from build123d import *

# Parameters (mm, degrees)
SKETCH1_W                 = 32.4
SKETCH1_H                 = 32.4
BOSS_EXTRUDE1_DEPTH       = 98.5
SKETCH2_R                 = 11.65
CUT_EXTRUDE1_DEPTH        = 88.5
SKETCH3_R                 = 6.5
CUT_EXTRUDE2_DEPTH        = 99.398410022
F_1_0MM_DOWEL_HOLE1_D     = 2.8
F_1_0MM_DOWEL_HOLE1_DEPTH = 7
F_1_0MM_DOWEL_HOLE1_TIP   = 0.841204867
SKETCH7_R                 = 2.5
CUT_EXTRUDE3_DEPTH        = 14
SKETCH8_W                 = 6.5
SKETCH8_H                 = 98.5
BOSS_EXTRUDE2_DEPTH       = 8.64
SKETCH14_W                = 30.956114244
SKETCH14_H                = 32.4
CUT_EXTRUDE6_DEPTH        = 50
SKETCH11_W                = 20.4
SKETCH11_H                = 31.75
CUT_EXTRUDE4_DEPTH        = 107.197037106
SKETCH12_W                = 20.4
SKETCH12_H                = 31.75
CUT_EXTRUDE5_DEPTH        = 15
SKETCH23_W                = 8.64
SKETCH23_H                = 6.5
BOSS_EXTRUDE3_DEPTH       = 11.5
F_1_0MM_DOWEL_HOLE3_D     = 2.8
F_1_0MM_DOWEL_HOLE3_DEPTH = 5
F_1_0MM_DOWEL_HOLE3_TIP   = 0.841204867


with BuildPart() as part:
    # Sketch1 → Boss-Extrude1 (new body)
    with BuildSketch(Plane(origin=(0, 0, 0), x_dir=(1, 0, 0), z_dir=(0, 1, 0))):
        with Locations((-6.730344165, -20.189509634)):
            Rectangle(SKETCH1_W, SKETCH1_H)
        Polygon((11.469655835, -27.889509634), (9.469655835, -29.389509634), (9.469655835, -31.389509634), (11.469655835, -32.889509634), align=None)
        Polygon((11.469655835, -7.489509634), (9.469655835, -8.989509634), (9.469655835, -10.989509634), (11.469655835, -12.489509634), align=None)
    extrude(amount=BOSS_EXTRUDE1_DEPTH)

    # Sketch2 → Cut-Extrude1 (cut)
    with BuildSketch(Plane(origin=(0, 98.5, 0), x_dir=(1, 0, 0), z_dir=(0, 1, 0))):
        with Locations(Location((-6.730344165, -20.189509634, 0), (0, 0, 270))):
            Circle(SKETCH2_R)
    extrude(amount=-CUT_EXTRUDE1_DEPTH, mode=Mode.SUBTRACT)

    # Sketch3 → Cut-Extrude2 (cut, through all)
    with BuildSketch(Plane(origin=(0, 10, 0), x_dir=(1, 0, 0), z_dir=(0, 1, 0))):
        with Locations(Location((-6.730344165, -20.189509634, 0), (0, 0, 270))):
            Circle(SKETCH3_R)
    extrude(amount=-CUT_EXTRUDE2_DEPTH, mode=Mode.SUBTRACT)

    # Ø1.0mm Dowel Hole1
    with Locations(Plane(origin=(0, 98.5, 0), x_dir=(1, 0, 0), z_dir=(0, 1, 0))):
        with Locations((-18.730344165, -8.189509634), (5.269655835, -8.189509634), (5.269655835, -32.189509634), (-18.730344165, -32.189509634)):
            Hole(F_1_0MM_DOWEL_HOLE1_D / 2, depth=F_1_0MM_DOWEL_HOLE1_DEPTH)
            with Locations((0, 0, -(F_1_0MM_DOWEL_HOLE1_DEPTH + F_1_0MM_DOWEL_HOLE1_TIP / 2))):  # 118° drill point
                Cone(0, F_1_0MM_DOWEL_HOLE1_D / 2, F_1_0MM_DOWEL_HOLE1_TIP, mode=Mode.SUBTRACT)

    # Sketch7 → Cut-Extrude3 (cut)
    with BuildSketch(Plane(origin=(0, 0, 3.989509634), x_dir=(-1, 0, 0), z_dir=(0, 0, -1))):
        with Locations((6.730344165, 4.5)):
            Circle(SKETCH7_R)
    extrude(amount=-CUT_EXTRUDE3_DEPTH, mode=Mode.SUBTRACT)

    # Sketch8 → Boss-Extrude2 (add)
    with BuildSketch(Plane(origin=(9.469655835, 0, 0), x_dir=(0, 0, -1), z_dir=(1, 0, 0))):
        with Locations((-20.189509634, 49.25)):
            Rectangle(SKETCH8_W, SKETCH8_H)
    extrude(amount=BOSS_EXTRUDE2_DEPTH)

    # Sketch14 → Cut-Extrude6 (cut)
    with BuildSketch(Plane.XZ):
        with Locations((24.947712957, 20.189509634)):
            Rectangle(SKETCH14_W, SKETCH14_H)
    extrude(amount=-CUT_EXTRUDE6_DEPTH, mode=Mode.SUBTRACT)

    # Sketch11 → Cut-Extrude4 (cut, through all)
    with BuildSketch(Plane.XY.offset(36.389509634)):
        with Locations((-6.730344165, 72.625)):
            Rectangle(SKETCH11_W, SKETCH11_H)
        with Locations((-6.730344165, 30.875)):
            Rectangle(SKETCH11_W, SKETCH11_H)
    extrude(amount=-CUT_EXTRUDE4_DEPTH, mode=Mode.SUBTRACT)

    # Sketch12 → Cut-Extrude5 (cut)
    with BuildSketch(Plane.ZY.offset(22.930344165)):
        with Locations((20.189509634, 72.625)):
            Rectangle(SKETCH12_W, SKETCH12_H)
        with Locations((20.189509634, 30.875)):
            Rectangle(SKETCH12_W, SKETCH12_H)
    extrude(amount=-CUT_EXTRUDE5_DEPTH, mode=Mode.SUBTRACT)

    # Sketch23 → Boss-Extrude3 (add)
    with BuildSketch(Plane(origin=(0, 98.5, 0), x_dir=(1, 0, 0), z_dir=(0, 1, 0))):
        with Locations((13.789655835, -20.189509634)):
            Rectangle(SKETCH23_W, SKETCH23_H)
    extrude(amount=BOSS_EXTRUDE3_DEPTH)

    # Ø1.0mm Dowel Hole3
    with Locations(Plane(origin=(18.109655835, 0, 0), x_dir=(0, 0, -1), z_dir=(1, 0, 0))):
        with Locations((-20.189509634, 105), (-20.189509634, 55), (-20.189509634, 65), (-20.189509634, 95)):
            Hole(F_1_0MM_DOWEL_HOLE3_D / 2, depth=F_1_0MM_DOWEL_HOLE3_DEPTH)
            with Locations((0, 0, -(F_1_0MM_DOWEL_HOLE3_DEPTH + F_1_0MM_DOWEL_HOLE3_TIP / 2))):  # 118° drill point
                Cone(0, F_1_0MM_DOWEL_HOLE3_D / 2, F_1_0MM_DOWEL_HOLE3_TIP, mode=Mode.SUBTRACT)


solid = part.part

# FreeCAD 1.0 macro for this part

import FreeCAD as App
import Part
import Sketcher
from FreeCAD import Vector

doc = App.newDocument("Part")
params = doc.addObject("Spreadsheet::Sheet", "Params")
for row, (alias, value) in enumerate([
    ("sketch1_height", "5 mm"),
    ("sketch1_width", "32.4 mm"),
    ("sketch1_height2", "18.4 mm"),
    ("pad1_length", "98.5 mm"),
    ("sketch2_diameter", "23.3 mm"),
    ("pocket1_length", "88.5 mm"),
    ("sketch3_diameter", "13 mm"),
    ("sketch4_diameter", "2.8 mm"),
    ("hole_diameter", "2.8 mm"),
    ("hole_depth", "7 mm"),
    ("sketch5_diameter", "5 mm"),
    ("pocket3_length", "14 mm"),
    ("sketch6_width", "98.5 mm"),
    ("sketch6_height", "6.5 mm"),
    ("pad2_length", "8.64 mm"),
    ("sketch7_height", "32.4 mm"),
    ("pocket4_length", "50 mm"),
    ("sketch8_width", "20.4 mm"),
    ("sketch8_height", "31.75 mm"),
    ("sketch9_height", "20.4 mm"),
    ("sketch9_width", "31.75 mm"),
    ("pocket6_length", "15 mm"),
    ("sketch10_height", "6.5 mm"),
    ("sketch10_width", "8.64 mm"),
    ("pad3_length", "11.5 mm"),
    ("sketch11_diameter", "2.8 mm"),
    ("hole2_diameter", "2.8 mm"),
    ("hole2_depth", "5 mm"),
], start=1):
    params.set(f"A{row}", alias)
    params.set(f"B{row}", "=" + value)
    params.setAlias(f"B{row}", alias)

body = doc.addObject("PartDesign::Body", "Body")

# Sketch on XZ plane
sketch1 = body.newObject("Sketcher::SketchObject", "Sketch")
sketch1.AttachmentSupport = (doc.getObject("XZ_Plane"), [""])
sketch1.MapMode = "FlatFace"
sketch1.addGeometry([
    Part.LineSegment(Vector(-22.930344, 3.98951, 0), Vector(-22.930344, 36.38951, 0)),  # 0
    Part.LineSegment(Vector(-22.930344, 36.38951, 0), Vector(9.469656, 36.38951, 0)),  # 1
    Part.LineSegment(Vector(9.469656, 36.38951, 0), Vector(9.469656, 31.38951, 0)),  # 2
    Part.LineSegment(Vector(9.469656, 31.38951, 0), Vector(11.469656, 32.88951, 0)),  # 3
    Part.LineSegment(Vector(11.469656, 32.88951, 0), Vector(11.469656, 27.88951, 0)),  # 4
    Part.LineSegment(Vector(11.469656, 27.88951, 0), Vector(9.469656, 29.38951, 0)),  # 5
    Part.LineSegment(Vector(9.469656, 29.38951, 0), Vector(9.469656, 10.98951, 0)),  # 6
    Part.LineSegment(Vector(9.469656, 10.98951, 0), Vector(11.469656, 12.48951, 0)),  # 7
    Part.LineSegment(Vector(11.469656, 12.48951, 0), Vector(11.469656, 7.48951, 0)),  # 8
    Part.LineSegment(Vector(11.469656, 7.48951, 0), Vector(9.469656, 8.98951, 0)),  # 9
    Part.LineSegment(Vector(9.469656, 8.98951, 0), Vector(9.469656, 3.98951, 0)),  # 10
    Part.LineSegment(Vector(9.469656, 3.98951, 0), Vector(-22.930344, 3.98951, 0)),  # 11
], False)
sketch1.addConstraint([
    Sketcher.Constraint("Coincident", 0, 2, 1, 1),
    Sketcher.Constraint("Coincident", 1, 2, 2, 1),
    Sketcher.Constraint("Coincident", 2, 2, 3, 1),
    Sketcher.Constraint("Coincident", 3, 2, 4, 1),
    Sketcher.Constraint("Coincident", 4, 2, 5, 1),
    Sketcher.Constraint("Coincident", 5, 2, 6, 1),
    Sketcher.Constraint("Coincident", 6, 2, 7, 1),
    Sketcher.Constraint("Coincident", 7, 2, 8, 1),
    Sketcher.Constraint("Coincident", 8, 2, 9, 1),
    Sketcher.Constraint("Coincident", 9, 2, 10, 1),
    Sketcher.Constraint("Coincident", 10, 2, 11, 1),
    Sketcher.Constraint("Coincident", 11, 2, 0, 1),
    Sketcher.Constraint("Vertical", 0),
    Sketcher.Constraint("Horizontal", 1),
    Sketcher.Constraint("Vertical", 2),
    Sketcher.Constraint("Vertical", 4),
    Sketcher.Constraint("Vertical", 6),
    Sketcher.Constraint("Vertical", 8),
    Sketcher.Constraint("Vertical", 10),
    Sketcher.Constraint("Horizontal", 11),
    Sketcher.Constraint("Parallel", 3, 7),
    Sketcher.Constraint("Parallel", 5, 9),
    Sketcher.Constraint("Vertical", 2, 2, 5, 2),
    Sketcher.Constraint("Vertical", 4, 2, 7, 2),
    Sketcher.Constraint("Vertical", 6, 2, 9, 2),
    Sketcher.Constraint("Equal", 11, 0),
    Sketcher.Constraint("Equal", 2, 4),
    Sketcher.Constraint("Equal", 4, 8),
    Sketcher.Constraint("Equal", 8, 10),
    Sketcher.Constraint("Equal", 3, 5),
    Sketcher.Constraint("DistanceY", 2, 2, 2, 1, 5.0),
    Sketcher.Constraint("DistanceX", 1, 1, 1, 2, 32.4),
    Sketcher.Constraint("DistanceY", 6, 2, 6, 1, 18.4),
    Sketcher.Constraint("DistanceX", 2, 2, 3, 2, 2.0),
    Sketcher.Constraint("DistanceY", -1, 1, 0, 2, 36.38951),
    Sketcher.Constraint("DistanceX", 0, 2, -1, 1, 22.930344),
])
sketch1.setExpression("Constraints[30]", "Params.sketch1_height")
sketch1.setExpression("Constraints[31]", "Params.sketch1_width")
sketch1.setExpression("Constraints[32]", "Params.sketch1_height2")
pad1 = body.newObject("PartDesign::Pad", "Pad")
pad1.Profile = sketch1
pad1.setExpression("Length", "Params.pad1_length")
pad1.Reversed = True

# Sketch on XZ plane
sketch2 = body.newObject("Sketcher::SketchObject", "Sketch001")
sketch2.AttachmentSupport = (doc.getObject("XZ_Plane"), [""])
sketch2.MapMode = "FlatFace"
sketch2.AttachmentOffset = App.Placement(Vector(0, 0, -98.5), App.Rotation())
sketch2.addGeometry(Part.Circle(Vector(-6.730344, 20.18951, 0), Vector(0, 0, 1), 11.65), False)
sketch2.addConstraint([
    Sketcher.Constraint("Diameter", 0, 23.3),
    Sketcher.Constraint("DistanceY", -1, 1, 0, 3, 20.18951),
    Sketcher.Constraint("DistanceX", 0, 3, -1, 1, 6.730344),
])
sketch2.setExpression("Constraints[0]", "Params.sketch2_diameter")
pocket1 = body.newObject("PartDesign::Pocket", "Pocket")
pocket1.Profile = sketch2
pocket1.setExpression("Length", "Params.pocket1_length")
pocket1.Reversed = True

# Sketch on XZ plane
sketch3 = body.newObject("Sketcher::SketchObject", "Sketch002")
sketch3.AttachmentSupport = (doc.getObject("XZ_Plane"), [""])
sketch3.MapMode = "FlatFace"
sketch3.AttachmentOffset = App.Placement(Vector(0, 0, -10), App.Rotation())
sketch3.addGeometry(Part.Circle(Vector(-6.730344, 20.18951, 0), Vector(0, 0, 1), 6.5), False)
sketch3.addConstraint([
    Sketcher.Constraint("Diameter", 0, 13.0),
    Sketcher.Constraint("DistanceY", -1, 1, 0, 3, 20.18951),
    Sketcher.Constraint("DistanceX", 0, 3, -1, 1, 6.730344),
])
sketch3.setExpression("Constraints[0]", "Params.sketch3_diameter")
pocket2 = body.newObject("PartDesign::Pocket", "Pocket001")
pocket2.Profile = sketch3
pocket2.Type = "ThroughAll"
pocket2.Reversed = True

# Sketch on XZ plane
sketch4 = body.newObject("Sketcher::SketchObject", "Sketch003")
sketch4.AttachmentSupport = (doc.getObject("XZ_Plane"), [""])
sketch4.MapMode = "FlatFace"
sketch4.AttachmentOffset = App.Placement(Vector(0, 0, -98.5), App.Rotation())
sketch4.addGeometry([
    Part.Circle(Vector(-18.730344, 8.18951, 0), Vector(0, 0, 1), 1.4),
    Part.Circle(Vector(5.269656, 8.18951, 0), Vector(0, 0, 1), 1.4),
    Part.Circle(Vector(5.269656, 32.18951, 0), Vector(0, 0, 1), 1.4),
    Part.Circle(Vector(-18.730344, 32.18951, 0), Vector(0, 0, 1), 1.4),
], False)
sketch4.addConstraint([
    Sketcher.Constraint("Equal", 0, 1),
    Sketcher.Constraint("Equal", 1, 2),
    Sketcher.Constraint("Equal", 2, 3),
    Sketcher.Constraint("Horizontal", 0, 3, 1, 3),
    Sketcher.Constraint("Horizontal", 2, 3, 3, 3),
    Sketcher.Constraint("Vertical", 1, 3, 2, 3),
    Sketcher.Constraint("Vertical", 0, 3, 3, 3),
    Sketcher.Constraint("Diameter", 0, 2.8),
    Sketcher.Constraint("DistanceX", 0, 3, 1, 3, 24.0),
    Sketcher.Constraint("DistanceY", 1, 3, 2, 3, 24.0),
    Sketcher.Constraint("DistanceY", -1, 1, 0, 3, 8.18951),
    Sketcher.Constraint("DistanceX", 0, 3, -1, 1, 18.730344),
])
sketch4.setExpression("Constraints[7]", "Params.sketch4_diameter")
doc.recompute()
hole = body.newObject("PartDesign::Hole", "Hole")
hole.Profile = sketch4
hole.ThreadType = "None"
hole.setExpression("Diameter", "Params.hole_diameter")
hole.DepthType = "Dimension"
hole.setExpression("Depth", "Params.hole_depth")
hole.DrillPoint = "Angled"
hole.DrillPointAngle = 118
hole.Reversed = True

# Sketch on XY plane
sketch5 = body.newObject("Sketcher::SketchObject", "Sketch004")
sketch5.AttachmentSupport = (doc.getObject("XY_Plane"), [""])
sketch5.MapMode = "FlatFace"
sketch5.AttachmentOffset = App.Placement(Vector(0, 0, 3.98951), App.Rotation())
sketch5.addGeometry(Part.Circle(Vector(-6.730344, 4.5, 0), Vector(0, 0, 1), 2.5), False)
sketch5.addConstraint([
    Sketcher.Constraint("Diameter", 0, 5.0),
    Sketcher.Constraint("DistanceY", -1, 1, 0, 3, 4.5),
    Sketcher.Constraint("DistanceX", 0, 3, -1, 1, 6.730344),
])
sketch5.setExpression("Constraints[0]", "Params.sketch5_diameter")
pocket3 = body.newObject("PartDesign::Pocket", "Pocket002")
pocket3.Profile = sketch5
pocket3.setExpression("Length", "Params.pocket3_length")
pocket3.Reversed = True

# Sketch on YZ plane
sketch6 = body.newObject("Sketcher::SketchObject", "Sketch005")
sketch6.AttachmentSupport = (doc.getObject("YZ_Plane"), [""])
sketch6.MapMode = "FlatFace"
sketch6.AttachmentOffset = App.Placement(Vector(0, 0, 9.469656), App.Rotation())
sketch6.addGeometry([
    Part.LineSegment(Vector(98.5, 23.43951, 0), Vector(0, 23.43951, 0)),
    Part.LineSegment(Vector(0, 23.43951, 0), Vector(0, 16.93951, 0)),
    Part.LineSegment(Vector(0, 16.93951, 0), Vector(98.5, 16.93951, 0)),
    Part.LineSegment(Vector(98.5, 16.93951, 0), Vector(98.5, 23.43951, 0)),
], False)
sketch6.addConstraint([
    Sketcher.Constraint("Coincident", 0, 2, 1, 1),
    Sketcher.Constraint("Coincident", 1, 2, 2, 1),
    Sketcher.Constraint("Coincident", 2, 2, 3, 1),
    Sketcher.Constraint("Coincident", 3, 2, 0, 1),
    Sketcher.Constraint("Horizontal", 0),
    Sketcher.Constraint("Vertical", 1),
    Sketcher.Constraint("Horizontal", 2),
    Sketcher.Constraint("Vertical", 3),
    Sketcher.Constraint("PointOnObject", 0, 2, -2),
    Sketcher.Constraint("DistanceX", 0, 2, 0, 1, 98.5),
    Sketcher.Constraint("DistanceY", 1, 2, 1, 1, 6.5),
    Sketcher.Constraint("DistanceY", -1, 1, 0, 2, 23.43951),
])
sketch6.setExpression("Constraints[9]", "Params.sketch6_width")
sketch6.setExpression("Constraints[10]", "Params.sketch6_height")
pad2 = body.newObject("PartDesign::Pad", "Pad001")
pad2.Profile = sketch6
pad2.setExpression("Length", "Params.pad2_length")

# Sketch on XZ plane
sketch7 = body.newObject("Sketcher::SketchObject", "Sketch006")
sketch7.AttachmentSupport = (doc.getObject("XZ_Plane"), [""])
sketch7.MapMode = "FlatFace"
sketch7.addGeometry([
    Part.LineSegment(Vector(9.469656, 36.38951, 0), Vector(9.469656, 3.98951, 0)),
    Part.LineSegment(Vector(9.469656, 3.98951, 0), Vector(40.42577, 3.98951, 0)),
    Part.LineSegment(Vector(40.42577, 3.98951, 0), Vector(40.42577, 36.38951, 0)),
    Part.LineSegment(Vector(40.42577, 36.38951, 0), Vector(9.469656, 36.38951, 0)),
], False)
sketch7.addConstraint([
    Sketcher.Constraint("Coincident", 0, 2, 1, 1),
    Sketcher.Constraint("Coincident", 1, 2, 2, 1),
    Sketcher.Constraint("Coincident", 2, 2, 3, 1),
    Sketcher.Constraint("Coincident", 3, 2, 0, 1),
    Sketcher.Constraint("Vertical", 0),
    Sketcher.Constraint("Horizontal", 1),
    Sketcher.Constraint("Vertical", 2),
    Sketcher.Constraint("Horizontal", 3),
    Sketcher.Constraint("DistanceY", 0, 2, 0, 1, 32.4),
    Sketcher.Constraint("DistanceX", 1, 1, 1, 2, 30.956114),
    Sketcher.Constraint("DistanceY", -1, 1, 0, 2, 3.98951),
    Sketcher.Constraint("DistanceX", -1, 1, 1, 2, 40.42577),
])
sketch7.setExpression("Constraints[8]", "Params.sketch7_height")
pocket4 = body.newObject("PartDesign::Pocket", "Pocket003")
pocket4.Profile = sketch7
pocket4.setExpression("Length", "Params.pocket4_length")

# Sketch on XY plane
sketch8 = body.newObject("Sketcher::SketchObject", "Sketch007")
sketch8.AttachmentSupport = (doc.getObject("XY_Plane"), [""])
sketch8.MapMode = "FlatFace"
sketch8.AttachmentOffset = App.Placement(Vector(0, 0, 36.38951), App.Rotation())
sketch8.addGeometry([
    Part.LineSegment(Vector(-16.930344, 88.5, 0), Vector(-16.930344, 56.75, 0)),  # 0
    Part.LineSegment(Vector(-16.930344, 56.75, 0), Vector(3.469656, 56.75, 0)),  # 1
    Part.LineSegment(Vector(3.469656, 56.75, 0), Vector(3.469656, 88.5, 0)),  # 2
    Part.LineSegment(Vector(3.469656, 88.5, 0), Vector(-16.930344, 88.5, 0)),  # 3
    Part.LineSegment(Vector(-16.930344, 46.75, 0), Vector(-16.930344, 15, 0)),  # 4
    Part.LineSegment(Vector(-16.930344, 15, 0), Vector(3.469656, 15, 0)),  # 5
    Part.LineSegment(Vector(3.469656, 15, 0), Vector(3.469656, 46.75, 0)),  # 6
    Part.LineSegment(Vector(3.469656, 46.75, 0), Vector(-16.930344, 46.75, 0)),  # 7
], False)
sketch8.addConstraint([
    Sketcher.Constraint("Coincident", 0, 2, 1, 1),
    Sketcher.Constraint("Coincident", 1, 2, 2, 1),
    Sketcher.Constraint("Coincident", 2, 2, 3, 1),
    Sketcher.Constraint("Coincident", 3, 2, 0, 1),
    Sketcher.Constraint("Coincident", 4, 2, 5, 1),
    Sketcher.Constraint("Coincident", 5, 2, 6, 1),
    Sketcher.Constraint("Coincident", 6, 2, 7, 1),
    Sketcher.Constraint("Coincident", 7, 2, 4, 1),
    Sketcher.Constraint("Vertical", 0),
    Sketcher.Constraint("Horizontal", 1),
    Sketcher.Constraint("Vertical", 2),
    Sketcher.Constraint("Horizontal", 3),
    Sketcher.Constraint("Vertical", 4),
    Sketcher.Constraint("Horizontal", 5),
    Sketcher.Constraint("Vertical", 6),
    Sketcher.Constraint("Horizontal", 7),
    Sketcher.Constraint("Vertical", 3, 2, 4, 2),
    Sketcher.Constraint("Vertical", 2, 2, 5, 2),
    Sketcher.Constraint("Equal", 2, 4),
    Sketcher.Constraint("DistanceX", 1, 1, 1, 2, 20.4),
    Sketcher.Constraint("DistanceY", -1, 1, 4, 2, 15.0),
    Sketcher.Constraint("DistanceY", 6, 2, 1, 2, 10.0),
    Sketcher.Constraint("DistanceY", 0, 2, 0, 1, 31.75),
    Sketcher.Constraint("DistanceX", 0, 2, -1, 1, 16.930344),
])
sketch8.setExpression("Constraints[19]", "Params.sketch8_width")
sketch8.setExpression("Constraints[22]", "Params.sketch8_height")
pocket5 = body.newObject("PartDesign::Pocket", "Pocket004")
pocket5.Profile = sketch8
pocket5.Type = "ThroughAll"

# Sketch on YZ plane
sketch9 = body.newObject("Sketcher::SketchObject", "Sketch008")
sketch9.AttachmentSupport = (doc.getObject("YZ_Plane"), [""])
sketch9.MapMode = "FlatFace"
sketch9.AttachmentOffset = App.Placement(Vector(0, 0, -22.930344), App.Rotation())
sketch9.addGeometry([
    Part.LineSegment(Vector(88.5, 9.98951, 0), Vector(56.75, 9.98951, 0)),  # 0
    Part.LineSegment(Vector(56.75, 9.98951, 0), Vector(56.75, 30.38951, 0)),  # 1
    Part.LineSegment(Vector(56.75, 30.38951, 0), Vector(88.5, 30.38951, 0)),  # 2
    Part.LineSegment(Vector(88.5, 30.38951, 0), Vector(88.5, 9.98951, 0)),  # 3
    Part.LineSegment(Vector(46.75, 9.98951, 0), Vector(15, 9.98951, 0)),  # 4
    Part.LineSegment(Vector(15, 9.98951, 0), Vector(15, 30.38951, 0)),  # 5
    Part.LineSegment(Vector(15, 30.38951, 0), Vector(46.75, 30.38951, 0)),  # 6
    Part.LineSegment(Vector(46.75, 30.38951, 0), Vector(46.75, 9.98951, 0)),  # 7
], False)
sketch9.addConstraint([
    Sketcher.Constraint("Coincident", 0, 2, 1, 1),
    Sketcher.Constraint("Coincident", 1, 2, 2, 1),
    Sketcher.Constraint("Coincident", 2, 2, 3, 1),
    Sketcher.Constraint("Coincident", 3, 2, 0, 1),
    Sketcher.Constraint("Coincident", 4, 2, 5, 1),
    Sketcher.Constraint("Coincident", 5, 2, 6, 1),
    Sketcher.Constraint("Coincident", 6, 2, 7, 1),
    Sketcher.Constraint("Coincident", 7, 2, 4, 1),
    Sketcher.Constraint("Horizontal", 0),
    Sketcher.Constraint("Vertical", 1),
    Sketcher.Constraint("Horizontal", 2),
    Sketcher.Constraint("Vertical", 3),
    Sketcher.Constraint("Horizontal", 4),
    Sketcher.Constraint("Vertical", 5),
    Sketcher.Constraint("Horizontal", 6),
    Sketcher.Constraint("Vertical", 7),
    Sketcher.Constraint("Horizontal", 3, 2, 4, 2),
    Sketcher.Constraint("Horizontal", 2, 2, 5, 2),
    Sketcher.Constraint("Equal", 2, 4),
    Sketcher.Constraint("DistanceY", 1, 1, 1, 2, 20.4),
    Sketcher.Constraint("DistanceX", -1, 1, 4, 2, 15.0),
    Sketcher.Constraint("DistanceX", 6, 2, 1, 2, 10.0),
    Sketcher.Constraint("DistanceX", 0, 2, 0, 1, 31.75),
    Sketcher.Constraint("DistanceY", -1, 1, 0, 2, 9.98951),
])
sketch9.setExpression("Constraints[19]", "Params.sketch9_height")
sketch9.setExpression("Constraints[22]", "Params.sketch9_width")
pocket6 = body.newObject("PartDesign::Pocket", "Pocket005")
pocket6.Profile = sketch9
pocket6.setExpression("Length", "Params.pocket6_length")
pocket6.Reversed = True

# Sketch on XZ plane
sketch10 = body.newObject("Sketcher::SketchObject", "Sketch009")
sketch10.AttachmentSupport = (doc.getObject("XZ_Plane"), [""])
sketch10.MapMode = "FlatFace"
sketch10.AttachmentOffset = App.Placement(Vector(0, 0, -98.5), App.Rotation())
sketch10.addGeometry([
    Part.LineSegment(Vector(9.469656, 16.93951, 0), Vector(9.469656, 23.43951, 0)),
    Part.LineSegment(Vector(9.469656, 23.43951, 0), Vector(18.109656, 23.43951, 0)),
    Part.LineSegment(Vector(18.109656, 23.43951, 0), Vector(18.109656, 16.93951, 0)),
    Part.LineSegment(Vector(18.109656, 16.93951, 0), Vector(9.469656, 16.93951, 0)),
], False)
sketch10.addConstraint([
    Sketcher.Constraint("Coincident", 0, 2, 1, 1),
    Sketcher.Constraint("Coincident", 1, 2, 2, 1),
    Sketcher.Constraint("Coincident", 2, 2, 3, 1),
    Sketcher.Constraint("Coincident", 3, 2, 0, 1),
    Sketcher.Constraint("Vertical", 0),
    Sketcher.Constraint("Horizontal", 1),
    Sketcher.Constraint("Vertical", 2),
    Sketcher.Constraint("Horizontal", 3),
    Sketcher.Constraint("DistanceY", 0, 1, 0, 2, 6.5),
    Sketcher.Constraint("DistanceX", 1, 1, 1, 2, 8.64),
    Sketcher.Constraint("DistanceY", -1, 1, 0, 2, 23.43951),
    Sketcher.Constraint("DistanceX", -1, 1, 0, 2, 9.469656),
])
sketch10.setExpression("Constraints[8]", "Params.sketch10_height")
sketch10.setExpression("Constraints[9]", "Params.sketch10_width")
pad3 = body.newObject("PartDesign::Pad", "Pad002")
pad3.Profile = sketch10
pad3.setExpression("Length", "Params.pad3_length")
pad3.Reversed = True

# Sketch on YZ plane
sketch11 = body.newObject("Sketcher::SketchObject", "Sketch010")
sketch11.AttachmentSupport = (doc.getObject("YZ_Plane"), [""])
sketch11.MapMode = "FlatFace"
sketch11.AttachmentOffset = App.Placement(Vector(0, 0, 18.109656), App.Rotation())
sketch11.addGeometry([
    Part.Circle(Vector(105, 20.18951, 0), Vector(0, 0, 1), 1.4),
    Part.Circle(Vector(55, 20.18951, 0), Vector(0, 0, 1), 1.4),
    Part.Circle(Vector(65, 20.18951, 0), Vector(0, 0, 1), 1.4),
    Part.Circle(Vector(95, 20.18951, 0), Vector(0, 0, 1), 1.4),
], False)
sketch11.addConstraint([
    Sketcher.Constraint("Equal", 0, 1),
    Sketcher.Constraint("Equal", 1, 2),
    Sketcher.Constraint("Equal", 2, 3),
    Sketcher.Constraint("Horizontal", 0, 3, 1, 3),
    Sketcher.Constraint("Horizontal", 1, 3, 2, 3),
    Sketcher.Constraint("Horizontal", 2, 3, 3, 3),
    Sketcher.Constraint("Diameter", 0, 2.8),
    Sketcher.Constraint("DistanceX", -1, 1, 0, 3, 105.0),
    Sketcher.Constraint("DistanceX", -1, 1, 1, 3, 55.0),
    Sketcher.Constraint("DistanceX", -1, 1, 2, 3, 65.0),
    Sketcher.Constraint("DistanceX", -1, 1, 3, 3, 95.0),
    Sketcher.Constraint("DistanceY", -1, 1, 0, 3, 20.18951),
])
sketch11.setExpression("Constraints[6]", "Params.sketch11_diameter")
doc.recompute()
hole2 = body.newObject("PartDesign::Hole", "Hole001")
hole2.Profile = sketch11
hole2.ThreadType = "None"
hole2.setExpression("Diameter", "Params.hole2_diameter")
hole2.DepthType = "Dimension"
hole2.setExpression("Depth", "Params.hole2_depth")
hole2.DrillPoint = "Angled"
hole2.DrillPointAngle = 118

doc.recompute()
